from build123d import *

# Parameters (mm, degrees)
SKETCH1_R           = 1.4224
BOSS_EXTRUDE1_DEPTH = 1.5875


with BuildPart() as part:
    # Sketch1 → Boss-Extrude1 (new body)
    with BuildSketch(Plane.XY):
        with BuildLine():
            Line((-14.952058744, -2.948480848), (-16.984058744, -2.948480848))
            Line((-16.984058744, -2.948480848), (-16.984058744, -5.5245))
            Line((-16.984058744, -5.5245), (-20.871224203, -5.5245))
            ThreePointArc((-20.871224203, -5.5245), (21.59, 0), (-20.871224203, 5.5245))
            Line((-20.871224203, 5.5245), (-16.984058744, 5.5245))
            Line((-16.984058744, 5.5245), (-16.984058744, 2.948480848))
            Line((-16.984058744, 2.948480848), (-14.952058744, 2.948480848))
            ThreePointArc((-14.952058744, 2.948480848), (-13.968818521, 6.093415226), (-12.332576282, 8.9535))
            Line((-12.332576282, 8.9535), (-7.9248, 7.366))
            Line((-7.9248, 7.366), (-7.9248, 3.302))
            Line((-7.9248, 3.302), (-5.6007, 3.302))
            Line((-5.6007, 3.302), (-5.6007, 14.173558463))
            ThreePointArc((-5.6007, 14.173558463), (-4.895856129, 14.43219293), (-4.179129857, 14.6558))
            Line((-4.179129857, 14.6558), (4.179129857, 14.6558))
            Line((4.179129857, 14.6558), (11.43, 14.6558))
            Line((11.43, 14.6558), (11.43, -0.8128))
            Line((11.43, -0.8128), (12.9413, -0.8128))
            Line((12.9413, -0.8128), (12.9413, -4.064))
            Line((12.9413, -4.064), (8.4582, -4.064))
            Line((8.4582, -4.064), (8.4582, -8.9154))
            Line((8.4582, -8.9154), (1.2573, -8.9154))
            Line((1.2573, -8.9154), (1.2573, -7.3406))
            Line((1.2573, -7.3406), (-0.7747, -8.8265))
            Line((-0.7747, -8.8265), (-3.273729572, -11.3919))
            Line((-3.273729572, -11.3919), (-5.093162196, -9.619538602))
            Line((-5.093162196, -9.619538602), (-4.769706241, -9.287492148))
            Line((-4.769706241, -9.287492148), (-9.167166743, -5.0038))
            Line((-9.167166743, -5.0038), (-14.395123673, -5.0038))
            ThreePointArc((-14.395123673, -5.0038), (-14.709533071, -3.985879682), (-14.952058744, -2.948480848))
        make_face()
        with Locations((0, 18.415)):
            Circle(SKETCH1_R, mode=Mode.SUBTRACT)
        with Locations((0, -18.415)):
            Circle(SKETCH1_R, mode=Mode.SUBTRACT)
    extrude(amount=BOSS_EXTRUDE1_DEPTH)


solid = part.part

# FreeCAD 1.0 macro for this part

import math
import FreeCAD as App
import Part
import Sketcher
from FreeCAD import Vector
Q = App.Units.Quantity

doc = App.newDocument("Part")
body = doc.addObject("PartDesign::Body", "Body")

# Sketch on XY plane
sketch1 = body.newObject("Sketcher::SketchObject", "Sketch")
sketch1.AttachmentSupport = (doc.getObject("XY_Plane"), [""])
sketch1.MapMode = "FlatFace"
sketch1.addGeometry([
    Part.LineSegment(Vector(-14.95, -2.95, 0), Vector(-16.98, -2.95, 0)),  # 0
    Part.LineSegment(Vector(-16.98, -2.95, 0), Vector(-16.98, -5.52, 0)),  # 1
    Part.LineSegment(Vector(-16.98, -5.52, 0), Vector(-20.87, -5.52, 0)),  # 2
    Part.ArcOfCircle(Part.Circle(Vector(0, 0, 0), Vector(0, 0, 1), 21.59), math.radians(-165), math.radians(165)),  # 3
    Part.LineSegment(Vector(-20.87, 5.52, 0), Vector(-16.98, 5.52, 0)),  # 4
    Part.LineSegment(Vector(-16.98, 5.52, 0), Vector(-16.98, 2.95, 0)),  # 5
    Part.LineSegment(Vector(-16.98, 2.95, 0), Vector(-14.95, 2.95, 0)),  # 6
    Part.ArcOfCircle(Part.Circle(Vector(0, 0, 0), Vector(0, 0, 1), 15.24), math.radians(144), math.radians(169)),  # 7
    Part.LineSegment(Vector(-12.33, 8.95, 0), Vector(-7.92, 7.37, 0)),  # 8
    Part.LineSegment(Vector(-7.92, 7.37, 0), Vector(-7.92, 3.3, 0)),  # 9
    Part.LineSegment(Vector(-7.92, 3.3, 0), Vector(-5.6, 3.3, 0)),  # 10
    Part.LineSegment(Vector(-5.6, 3.3, 0), Vector(-5.6, 14.17, 0)),  # 11
    Part.ArcOfCircle(Part.Circle(Vector(0, 0, 0), Vector(0, 0, 1), 15.24), math.radians(105.92), math.radians(111.56)),  # 12
    Part.LineSegment(Vector(-4.18, 14.66, 0), Vector(11.43, 14.66, 0)),  # 13
    Part.LineSegment(Vector(11.43, 14.66, 0), Vector(11.43, -0.81, 0)),  # 14
    Part.LineSegment(Vector(11.43, -0.81, 0), Vector(12.94, -0.81, 0)),  # 15
    Part.LineSegment(Vector(12.94, -0.81, 0), Vector(12.94, -4.06, 0)),  # 16
    Part.LineSegment(Vector(12.94, -4.06, 0), Vector(8.46, -4.06, 0)),  # 17
    Part.LineSegment(Vector(8.46, -4.06, 0), Vector(8.46, -8.92, 0)),  # 18
    Part.LineSegment(Vector(8.46, -8.92, 0), Vector(1.26, -8.92, 0)),  # 19
    Part.LineSegment(Vector(1.26, -8.92, 0), Vector(1.26, -7.34, 0)),  # 20
    Part.LineSegment(Vector(1.26, -7.34, 0), Vector(-0.77, -8.83, 0)),  # 21
    Part.LineSegment(Vector(-0.77, -8.83, 0), Vector(-3.27, -11.39, 0)),  # 22
    Part.LineSegment(Vector(-3.27, -11.39, 0), Vector(-5.09, -9.62, 0)),  # 23
    Part.LineSegment(Vector(-5.09, -9.62, 0), Vector(-4.77, -9.29, 0)),  # 24
    Part.LineSegment(Vector(-4.77, -9.29, 0), Vector(-9.17, -5, 0)),  # 25
    Part.LineSegment(Vector(-9.17, -5, 0), Vector(-14.4, -5, 0)),  # 26
    Part.ArcOfCircle(Part.Circle(Vector(0, 0, 0), Vector(0, 0, 1), 15.24), math.radians(-168.84), math.radians(-160.83)),  # 27
    Part.Circle(Vector(0, -18.41, 0), Vector(0, 0, 1), 1.42),  # 28
    Part.Circle(Vector(0, 18.41, 0), Vector(0, 0, 1), 1.42),  # 29
], False)
sketch1.addConstraint([
    Sketcher.Constraint("Coincident", 0, 2, 1, 1),
    Sketcher.Constraint("Coincident", 1, 2, 2, 1),
    Sketcher.Constraint("Coincident", 2, 2, 3, 1),
    Sketcher.Constraint("Coincident", 3, 2, 4, 1),
    Sketcher.Constraint("Coincident", 4, 2, 5, 1),
    Sketcher.Constraint("Coincident", 5, 2, 6, 1),
    Sketcher.Constraint("Coincident", 6, 2, 7, 2),
    Sketcher.Constraint("Coincident", 7, 1, 8, 1),
    Sketcher.Constraint("Coincident", 8, 2, 9, 1),
    Sketcher.Constraint("Coincident", 9, 2, 10, 1),
    Sketcher.Constraint("Coincident", 10, 2, 11, 1),
    Sketcher.Constraint("Coincident", 11, 2, 12, 2),
    Sketcher.Constraint("Coincident", 12, 1, 13, 1),
    Sketcher.Constraint("Coincident", 13, 2, 14, 1),
    Sketcher.Constraint("Coincident", 14, 2, 15, 1),
    Sketcher.Constraint("Coincident", 15, 2, 16, 1),
    Sketcher.Constraint("Coincident", 16, 2, 17, 1),
    Sketcher.Constraint("Coincident", 17, 2, 18, 1),
    Sketcher.Constraint("Coincident", 18, 2, 19, 1),
    Sketcher.Constraint("Coincident", 19, 2, 20, 1),
    Sketcher.Constraint("Coincident", 20, 2, 21, 1),
    Sketcher.Constraint("Coincident", 21, 2, 22, 1),
    Sketcher.Constraint("Coincident", 22, 2, 23, 1),
    Sketcher.Constraint("Coincident", 23, 2, 24, 1),
    Sketcher.Constraint("Coincident", 24, 2, 25, 1),
    Sketcher.Constraint("Coincident", 25, 2, 26, 1),
    Sketcher.Constraint("Coincident", 26, 2, 27, 2),
    Sketcher.Constraint("Coincident", 27, 1, 0, 1),
    Sketcher.Constraint("Horizontal", 0),
    Sketcher.Constraint("Vertical", 1),
    Sketcher.Constraint("Horizontal", 2),
    Sketcher.Constraint("Horizontal", 4),
    Sketcher.Constraint("Vertical", 5),
    Sketcher.Constraint("Horizontal", 6),
    Sketcher.Constraint("Vertical", 9),
    Sketcher.Constraint("Horizontal", 10),
    Sketcher.Constraint("Vertical", 11),
    Sketcher.Constraint("Horizontal", 13),
    Sketcher.Constraint("Vertical", 14),
    Sketcher.Constraint("Horizontal", 15),
    Sketcher.Constraint("Vertical", 16),
    Sketcher.Constraint("Horizontal", 17),
    Sketcher.Constraint("Vertical", 18),
    Sketcher.Constraint("Horizontal", 19),
    Sketcher.Constraint("Vertical", 20),
    Sketcher.Constraint("Horizontal", 26),
    Sketcher.Constraint("Coincident", 3, 3, -1, 1),
    Sketcher.Constraint("Coincident", 7, 3, -1, 1),
    Sketcher.Constraint("Coincident", 12, 3, -1, 1),
    Sketcher.Constraint("Coincident", 27, 3, -1, 1),
    Sketcher.Constraint("Equal", 7, 12),
    Sketcher.Constraint("Equal", 12, 27),
    Sketcher.Constraint("Equal", 28, 29),
    Sketcher.Constraint("Symmetric", 28, 3, 29, 3, -1, 1),
    Sketcher.Constraint("Symmetric", 1, 2, 4, 2, -1),
    Sketcher.Constraint("PointOnObject", 28, 3, -2),
    Sketcher.Constraint("Perpendicular", 22, 23),
    Sketcher.Constraint("Perpendicular", 23, 24),
    Sketcher.Constraint("Perpendicular", 24, 25),
    Sketcher.Constraint("Vertical", 6, 2, 27, 1),
    Sketcher.Constraint("Radius", 7, Q("0.6 in")),
    Sketcher.Constraint("Radius", 3, Q("0.85 in")),
    Sketcher.Constraint("Diameter", 28, Q("0.112 in")),
    Sketcher.Constraint("Distance", 23, Q("0.1 in")),
    Sketcher.Constraint("DistanceX", 0, 2, 0, 1, Q("0.08 in")),
    Sketcher.Constraint("DistanceY", 9, 2, 9, 1, Q("0.16 in")),
    Sketcher.Constraint("DistanceY", 14, 2, 14, 1, Q("0.609 in")),
    Sketcher.Constraint("DistanceY", 16, 2, 16, 1, Q("0.128 in")),
    Sketcher.Constraint("DistanceY", 18, 2, 18, 1, Q("0.191 in")),
    Sketcher.Constraint("DistanceY", 20, 1, 20, 2, Q("0.062 in")),
    Sketcher.Constraint("DistanceY", -1, 1, 8, 2, Q("0.29 in")),
    Sketcher.Constraint("DistanceX", -1, 1, 13, 2, Q("0.45 in")),
    Sketcher.Constraint("DistanceY", 16, 2, -1, 1, Q("0.16 in")),
    Sketcher.Constraint("DistanceY", 28, 3, 29, 3, Q("1.45 in")),
    Sketcher.Constraint("DistanceX", 21, 2, 19, 2, Q("0.08 in")),
    Sketcher.Constraint("Distance", 22, Q("0.141 in")),
    Sketcher.Constraint("DistanceX", 10, 1, 10, 2, Q("0.0915 in")),
    Sketcher.Constraint("DistanceX", 15, 1, 15, 2, Q("0.0595 in")),
    Sketcher.Constraint("DistanceX", 17, 2, 17, 1, Q("0.1765 in")),
    Sketcher.Constraint("DistanceX", 19, 2, 19, 1, Q("0.2835 in")),
    Sketcher.Constraint("DistanceX", 8, 2, -1, 1, Q("0.312 in")),
    Sketcher.Constraint("DistanceY", 25, 2, -1, 1, Q("0.197 in")),
    Sketcher.Constraint("DistanceY", 2, 2, 3, 2, Q("0.435 in")),
    Sketcher.Constraint("DistanceY", 4, 2, 7, 1, Q("0.135 in")),
    Sketcher.Constraint("DistanceY", 22, 2, 21, 2, Q("0.101 in")),
    Sketcher.Constraint("DistanceY", 21, 2, -1, 1, Q("0.3475 in")),
    Sketcher.Constraint("DistanceY", 1, 2, 1, 1, 2.576019),
    Sketcher.Constraint("Distance", 24, 0.46355),
])
pad1 = body.newObject("PartDesign::Pad", "Pad")
pad1.Profile = sketch1
pad1.Length = Q("0.0625 in")

doc.recompute()
